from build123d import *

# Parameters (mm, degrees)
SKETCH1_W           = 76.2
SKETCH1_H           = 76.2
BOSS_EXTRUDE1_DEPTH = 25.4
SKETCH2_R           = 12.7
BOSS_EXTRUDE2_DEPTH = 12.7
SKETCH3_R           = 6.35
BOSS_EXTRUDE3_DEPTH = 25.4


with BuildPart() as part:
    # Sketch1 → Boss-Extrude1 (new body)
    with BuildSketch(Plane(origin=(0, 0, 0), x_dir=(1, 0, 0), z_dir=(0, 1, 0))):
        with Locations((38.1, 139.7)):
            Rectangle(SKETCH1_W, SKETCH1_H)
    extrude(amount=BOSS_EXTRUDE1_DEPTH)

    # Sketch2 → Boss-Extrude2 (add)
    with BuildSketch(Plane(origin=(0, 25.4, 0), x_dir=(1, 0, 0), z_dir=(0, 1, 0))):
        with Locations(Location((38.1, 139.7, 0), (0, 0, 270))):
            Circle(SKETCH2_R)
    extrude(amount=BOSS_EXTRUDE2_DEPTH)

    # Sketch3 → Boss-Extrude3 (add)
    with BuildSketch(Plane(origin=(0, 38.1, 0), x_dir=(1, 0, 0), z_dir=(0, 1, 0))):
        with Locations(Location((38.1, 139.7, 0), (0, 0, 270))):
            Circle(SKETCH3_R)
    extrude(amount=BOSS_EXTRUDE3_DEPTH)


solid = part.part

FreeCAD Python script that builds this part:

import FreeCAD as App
import Part
import Sketcher

V = App.Vector
Q = App.Units.Quantity

doc = App.newDocument("Part")
params = doc.addObject("Spreadsheet::Sheet", "Params")
for row, (alias, value) in enumerate([
    ("sketch1_width", "3 in"),
    ("pad1_length", "1 in"),
    ("sketch2_diameter", "1 in"),
    ("pad2_length", "0.5 in"),
    ("sketch3_diameter", "0.5 in"),
    ("pad3_length", "1 in"),
], start=1):
    params.set(f"A{row}", alias)
    params.set(f"B{row}", "=" + value)
    params.setAlias(f"B{row}", alias)

body = doc.addObject("PartDesign::Body", "Body")

# Sketch on XZ plane
sketch1 = body.newObject("Sketcher::SketchObject", "Sketch")
sketch1.AttachmentSupport = (doc.getObject("XZ_Plane"), [""])
sketch1.MapMode = "FlatFace"
sketch1.addGeometry([
    Part.LineSegment(V(0, -178, 0), V(0, -102, 0)),
    Part.LineSegment(V(0, -102, 0), V(76, -102, 0)),
    Part.LineSegment(V(76, -102, 0), V(76, -178, 0)),
    Part.LineSegment(V(76, -178, 0), V(0, -178, 0)),
], False)
sketch1.addConstraint([
    Sketcher.Constraint("Coincident", 0, 2, 1, 1),
    Sketcher.Constraint("Coincident", 1, 2, 2, 1),
    Sketcher.Constraint("Coincident", 2, 2, 3, 1),
    Sketcher.Constraint("Coincident", 3, 2, 0, 1),
    Sketcher.Constraint("Vertical", 0),
    Sketcher.Constraint("Horizontal", 1),
    Sketcher.Constraint("Vertical", 2),
    Sketcher.Constraint("Horizontal", 3),
    Sketcher.Constraint("PointOnObject", 0, 2, -2),
    Sketcher.Constraint("Equal", 3, 0),
    Sketcher.Constraint("DistanceX", 1, 1, 1, 2, Q("3 in")),
    Sketcher.Constraint("DistanceY", 0, 2, -1, 1, Q("4 in")),
])
sketch1.setExpression("Constraints[10]", "Params.sketch1_width")
pad1 = body.newObject("PartDesign::Pad", "Pad")
pad1.Profile = sketch1
pad1.setExpression("Length", "Params.pad1_length")
pad1.Reversed = True

# Sketch on XZ plane
sketch2 = body.newObject("Sketcher::SketchObject", "Sketch001")
sketch2.AttachmentSupport = (doc.getObject("XZ_Plane"), [""])
sketch2.MapMode = "FlatFace"
sketch2.AttachmentOffset = App.Placement(V(0, 0, -1 * 25.4), App.Rotation())
sketch2.addGeometry(Part.Circle(V(38, -140, 0), V(0, 0, 1), 13), False)
sketch2.addConstraint([
    Sketcher.Constraint("Diameter", 0, Q("1 in")),
    Sketcher.Constraint("DistanceX", -1, 1, 0, 3, Q("1.5 in")),
    Sketcher.Constraint("DistanceY", 0, 3, -1, 1, Q("5.5 in")),
])
sketch2.setExpression("Constraints[0]", "Params.sketch2_diameter")
pad2 = body.newObject("PartDesign::Pad", "Pad001")
pad2.Profile = sketch2
pad2.setExpression("Length", "Params.pad2_length")
pad2.Reversed = True

# Sketch on XZ plane
sketch3 = body.newObject("Sketcher::SketchObject", "Sketch002")
sketch3.AttachmentSupport = (doc.getObject("XZ_Plane"), [""])
sketch3.MapMode = "FlatFace"
sketch3.AttachmentOffset = App.Placement(V(0, 0, -1.5 * 25.4), App.Rotation())
sketch3.addGeometry(Part.Circle(V(38, -140, 0), V(0, 0, 1), 6), False)
sketch3.addConstraint([
    Sketcher.Constraint("Diameter", 0, Q("0.5 in")),
    Sketcher.Constraint("DistanceX", -1, 1, 0, 3, Q("1.5 in")),
    Sketcher.Constraint("DistanceY", 0, 3, -1, 1, Q("5.5 in")),
])
sketch3.setExpression("Constraints[0]", "Params.sketch3_diameter")
pad3 = body.newObject("PartDesign::Pad", "Pad002")
pad3.Profile = sketch3
pad3.setExpression("Length", "Params.pad3_length")
pad3.Reversed = True

doc.recompute()
